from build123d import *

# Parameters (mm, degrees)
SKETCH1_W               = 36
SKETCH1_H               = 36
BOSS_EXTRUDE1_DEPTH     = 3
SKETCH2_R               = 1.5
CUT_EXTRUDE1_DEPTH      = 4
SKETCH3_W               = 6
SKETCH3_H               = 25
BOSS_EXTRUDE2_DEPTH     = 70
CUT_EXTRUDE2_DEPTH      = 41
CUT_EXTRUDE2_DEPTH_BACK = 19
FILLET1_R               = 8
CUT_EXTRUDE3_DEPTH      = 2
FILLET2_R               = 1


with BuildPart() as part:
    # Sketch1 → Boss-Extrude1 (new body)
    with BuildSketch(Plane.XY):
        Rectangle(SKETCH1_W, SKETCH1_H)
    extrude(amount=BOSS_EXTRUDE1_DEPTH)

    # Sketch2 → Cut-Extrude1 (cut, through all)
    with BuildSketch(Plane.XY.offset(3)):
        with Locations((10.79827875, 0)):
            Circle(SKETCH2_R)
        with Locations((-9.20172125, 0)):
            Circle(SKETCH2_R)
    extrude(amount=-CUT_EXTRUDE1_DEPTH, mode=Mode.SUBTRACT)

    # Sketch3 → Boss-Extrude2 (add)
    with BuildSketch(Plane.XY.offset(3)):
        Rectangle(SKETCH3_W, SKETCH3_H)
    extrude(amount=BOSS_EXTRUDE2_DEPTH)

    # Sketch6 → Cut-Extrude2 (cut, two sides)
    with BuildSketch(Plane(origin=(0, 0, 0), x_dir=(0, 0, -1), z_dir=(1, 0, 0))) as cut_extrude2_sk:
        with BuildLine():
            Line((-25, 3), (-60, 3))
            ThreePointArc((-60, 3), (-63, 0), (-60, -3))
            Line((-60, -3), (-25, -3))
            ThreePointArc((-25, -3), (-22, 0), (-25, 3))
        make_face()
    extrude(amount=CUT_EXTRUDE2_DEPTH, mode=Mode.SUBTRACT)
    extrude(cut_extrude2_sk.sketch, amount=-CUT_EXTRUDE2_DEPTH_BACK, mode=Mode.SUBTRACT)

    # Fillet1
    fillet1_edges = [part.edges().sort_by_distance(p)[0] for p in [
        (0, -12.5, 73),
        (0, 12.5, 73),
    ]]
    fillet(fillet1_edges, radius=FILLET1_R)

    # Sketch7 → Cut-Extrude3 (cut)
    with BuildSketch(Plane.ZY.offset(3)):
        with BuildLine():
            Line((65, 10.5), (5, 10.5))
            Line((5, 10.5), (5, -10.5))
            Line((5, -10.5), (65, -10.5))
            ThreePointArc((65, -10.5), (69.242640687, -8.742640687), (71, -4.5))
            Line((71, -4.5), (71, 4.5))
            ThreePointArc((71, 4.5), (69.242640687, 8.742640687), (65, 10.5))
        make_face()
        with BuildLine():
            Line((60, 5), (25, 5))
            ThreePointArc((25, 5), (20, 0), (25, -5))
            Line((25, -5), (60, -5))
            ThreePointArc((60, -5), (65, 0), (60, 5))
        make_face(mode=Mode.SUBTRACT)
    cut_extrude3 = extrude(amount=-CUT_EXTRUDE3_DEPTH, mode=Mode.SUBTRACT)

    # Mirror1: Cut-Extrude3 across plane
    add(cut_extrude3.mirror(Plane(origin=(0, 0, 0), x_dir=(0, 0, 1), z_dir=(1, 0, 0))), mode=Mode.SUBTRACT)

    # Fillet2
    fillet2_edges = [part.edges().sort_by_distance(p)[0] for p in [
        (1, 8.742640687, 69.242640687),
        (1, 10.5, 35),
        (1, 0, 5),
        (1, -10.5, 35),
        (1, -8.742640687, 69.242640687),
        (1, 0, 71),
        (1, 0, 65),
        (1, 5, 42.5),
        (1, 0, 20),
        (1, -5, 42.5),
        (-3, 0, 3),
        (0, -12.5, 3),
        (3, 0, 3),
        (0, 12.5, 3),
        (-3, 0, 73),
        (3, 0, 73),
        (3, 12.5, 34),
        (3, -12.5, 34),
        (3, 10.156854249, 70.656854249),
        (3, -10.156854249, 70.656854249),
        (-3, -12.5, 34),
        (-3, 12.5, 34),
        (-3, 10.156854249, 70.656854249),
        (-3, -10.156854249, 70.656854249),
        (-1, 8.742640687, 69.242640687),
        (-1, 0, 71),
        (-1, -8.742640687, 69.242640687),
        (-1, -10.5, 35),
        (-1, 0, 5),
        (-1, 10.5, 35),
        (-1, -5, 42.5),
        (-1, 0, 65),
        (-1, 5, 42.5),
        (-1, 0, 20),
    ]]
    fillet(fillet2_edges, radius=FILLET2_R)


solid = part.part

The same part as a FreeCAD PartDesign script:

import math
import FreeCAD as App
import Part
import Sketcher
Q = App.Units.Quantity


def edges_at(feature, points):
    """Names of the edges that pass closest to the given points."""
    edges = feature.Shape.Edges
    near = lambda p: min(range(len(edges)), key=lambda i: edges[i].distToShape(Part.Vertex(*p))[0])
    return sorted({f"Edge{near(p) + 1}" for p in points})


def add_polygon(sketch, points):
    """Adds a closed chain of lines whose ends are joined by coincident constraints."""
    first, n = sketch.GeometryCount, len(points)
    for a, b in zip(points, points[1:] + points[:1]):
        sketch.addGeometry(Part.LineSegment(App.Vector(*a, 0), App.Vector(*b, 0)), False)
    for i in range(n):
        sketch.addConstraint(Sketcher.Constraint("Coincident", first + i, 2, first + (i + 1) % n, 1))

doc = App.newDocument("Part")
body = doc.addObject("PartDesign::Body", "Body")

# Sketch on XY plane
sketch1 = doc.addObject("Sketcher::SketchObject", "Sketch")
body.addObject(sketch1)
sketch1.AttachmentSupport = (doc.XY_Plane, [""])
sketch1.MapMode = "FlatFace"
add_polygon(sketch1, [(-18, 18), (-18, -18), (18, -18), (18, 18)])  # lines 0-3
sketch1.addConstraint(Sketcher.Constraint("Vertical", 0))
sketch1.addConstraint(Sketcher.Constraint("Horizontal", 1))
sketch1.addConstraint(Sketcher.Constraint("Vertical", 2))
sketch1.addConstraint(Sketcher.Constraint("Horizontal", 3))
sketch1.addConstraint(Sketcher.Constraint("Symmetric", 0, 2, 2, 2, -1, 1))
sketch1.addConstraint(Sketcher.Constraint("Equal", 3, 0))
sketch1.addConstraint(Sketcher.Constraint("DistanceX", 1, 1, 1, 2, Q("36 mm")))
pad1 = doc.addObject("PartDesign::Pad", "Pad")
body.addObject(pad1)
pad1.Profile = sketch1
pad1.Length = 3

# Sketch on XY plane
sketch2 = doc.addObject("Sketcher::SketchObject", "Sketch001")
body.addObject(sketch2)
sketch2.AttachmentSupport = (doc.XY_Plane, [""])
sketch2.MapMode = "FlatFace"
sketch2.AttachmentOffset = App.Placement(App.Vector(0, 0, 3), App.Rotation())
sketch2.addGeometry(Part.Circle(App.Vector(10.798279, 0, 0), App.Vector(0, 0, 1), 1.5), False)
sketch2.addGeometry(Part.Circle(App.Vector(-9.201721, 0, 0), App.Vector(0, 0, 1), 1.5), False)
sketch2.addConstraint(Sketcher.Constraint("Equal", 0, 1))
sketch2.addConstraint(Sketcher.Constraint("PointOnObject", 0, 3, -1))
sketch2.addConstraint(Sketcher.Constraint("PointOnObject", 1, 3, -1))
sketch2.addConstraint(Sketcher.Constraint("Diameter", 0, Q("3 mm")))
sketch2.addConstraint(Sketcher.Constraint("DistanceX", 1, 3, 0, 3, Q("20 mm")))
sketch2.addConstraint(Sketcher.Constraint("DistanceX", -1, 1, 0, 3, Q("10.798279 mm")))
pocket1 = doc.addObject("PartDesign::Pocket", "Pocket")
body.addObject(pocket1)
pocket1.Profile = sketch2
pocket1.Type = "ThroughAll"

# Sketch on XY plane
sketch3 = doc.addObject("Sketcher::SketchObject", "Sketch002")
body.addObject(sketch3)
sketch3.AttachmentSupport = (doc.XY_Plane, [""])
sketch3.MapMode = "FlatFace"
sketch3.AttachmentOffset = App.Placement(App.Vector(0, 0, 3), App.Rotation())
add_polygon(sketch3, [(-3, 12.5), (-3, -12.5), (3, -12.5), (3, 12.5)])  # lines 0-3
sketch3.addConstraint(Sketcher.Constraint("Vertical", 0))
sketch3.addConstraint(Sketcher.Constraint("Horizontal", 1))
sketch3.addConstraint(Sketcher.Constraint("Vertical", 2))
sketch3.addConstraint(Sketcher.Constraint("Horizontal", 3))
sketch3.addConstraint(Sketcher.Constraint("Symmetric", 0, 2, 2, 2, -1, 1))
sketch3.addConstraint(Sketcher.Constraint("DistanceX", 1, 1, 1, 2, Q("6 mm")))
sketch3.addConstraint(Sketcher.Constraint("DistanceY", 0, 2, 0, 1, Q("25 mm")))
pad2 = doc.addObject("PartDesign::Pad", "Pad001")
body.addObject(pad2)
pad2.Profile = sketch3
pad2.Length = 70

# Sketch on YZ plane
sketch4 = doc.addObject("Sketcher::SketchObject", "Sketch003")
body.addObject(sketch4)
sketch4.AttachmentSupport = (doc.YZ_Plane, [""])
sketch4.MapMode = "FlatFace"
sketch4.addGeometry(Part.LineSegment(App.Vector(3, 25, 0), App.Vector(3, 60, 0)), False)
sketch4.addGeometry(Part.ArcOfCircle(Part.Circle(App.Vector(0, 60, 0), App.Vector(0, 0, 1), 3), math.radians(0), math.radians(180)), False)
sketch4.addGeometry(Part.LineSegment(App.Vector(-3, 60, 0), App.Vector(-3, 25, 0)), False)
sketch4.addGeometry(Part.ArcOfCircle(Part.Circle(App.Vector(0, 25, 0), App.Vector(0, 0, 1), 3), math.radians(180), math.radians(360)), False)
sketch4.addConstraint(Sketcher.Constraint("Tangent", 0, 2, 1, 1))
sketch4.addConstraint(Sketcher.Constraint("Tangent", 1, 2, 2, 1))
sketch4.addConstraint(Sketcher.Constraint("Tangent", 2, 2, 3, 1))
sketch4.addConstraint(Sketcher.Constraint("Tangent", 3, 2, 0, 1))
sketch4.addConstraint(Sketcher.Constraint("Vertical", 0))
sketch4.addConstraint(Sketcher.Constraint("Vertical", 2))
sketch4.addConstraint(Sketcher.Constraint("PointOnObject", 1, 3, -2))
sketch4.addConstraint(Sketcher.Constraint("Radius", 1, Q("3 mm")))
sketch4.addConstraint(Sketcher.Constraint("DistanceY", 0, 1, 0, 2, Q("35 mm")))
sketch4.addConstraint(Sketcher.Constraint("DistanceY", -1, 1, 1, 3, Q("60 mm")))
pocket2 = doc.addObject("PartDesign::Pocket", "Pocket001")
body.addObject(pocket2)
pocket2.Profile = sketch4
pocket2.Type = "ThroughAll"
pocket2.Midplane = True
doc.recompute()

fillet = doc.addObject("PartDesign::Fillet", "Fillet")
body.addObject(fillet)
fillet.Base = (pocket2, edges_at(pocket2, [(0, -12.5, 73), (0, 12.5, 73)]))
fillet.Radius = 8

# Sketch on YZ plane
sketch5 = doc.addObject("Sketcher::SketchObject", "Sketch004")
body.addObject(sketch5)
sketch5.AttachmentSupport = (doc.YZ_Plane, [""])
sketch5.MapMode = "FlatFace"
sketch5.AttachmentOffset = App.Placement(App.Vector(0, 0, -3), App.Rotation())
sketch5.addGeometry(Part.LineSegment(App.Vector(10.5, 65, 0), App.Vector(10.5, 5, 0)), False)
sketch5.addGeometry(Part.LineSegment(App.Vector(10.5, 5, 0), App.Vector(-10.5, 5, 0)), False)
sketch5.addGeometry(Part.LineSegment(App.Vector(-10.5, 5, 0), App.Vector(-10.5, 65, 0)), False)
sketch5.addGeometry(Part.ArcOfCircle(Part.Circle(App.Vector(-4.5, 65, 0), App.Vector(0, 0, 1), 6), math.radians(90), math.radians(180)), False)
sketch5.addGeometry(Part.LineSegment(App.Vector(-4.5, 71, 0), App.Vector(4.5, 71, 0)), False)
sketch5.addGeometry(Part.ArcOfCircle(Part.Circle(App.Vector(4.5, 65, 0), App.Vector(0, 0, 1), 6), math.radians(0), math.radians(90)), False)
sketch5.addGeometry(Part.LineSegment(App.Vector(5, 25, 0), App.Vector(5, 60, 0)), False)
sketch5.addGeometry(Part.ArcOfCircle(Part.Circle(App.Vector(0, 60, 0), App.Vector(0, 0, 1), 5), math.radians(0), math.radians(180)), False)
sketch5.addGeometry(Part.LineSegment(App.Vector(-5, 60, 0), App.Vector(-5, 25, 0)), False)
sketch5.addGeometry(Part.ArcOfCircle(Part.Circle(App.Vector(0, 25, 0), App.Vector(0, 0, 1), 5), math.radians(180), math.radians(360)), False)
sketch5.addConstraint(Sketcher.Constraint("Coincident", 0, 2, 1, 1))
sketch5.addConstraint(Sketcher.Constraint("Coincident", 1, 2, 2, 1))
sketch5.addConstraint(Sketcher.Constraint("Tangent", 2, 2, 3, 2))
sketch5.addConstraint(Sketcher.Constraint("Tangent", 3, 1, 4, 1))
sketch5.addConstraint(Sketcher.Constraint("Tangent", 4, 2, 5, 2))
sketch5.addConstraint(Sketcher.Constraint("Tangent", 5, 1, 0, 1))
sketch5.addConstraint(Sketcher.Constraint("Tangent", 6, 2, 7, 1))
sketch5.addConstraint(Sketcher.Constraint("Tangent", 7, 2, 8, 1))
sketch5.addConstraint(Sketcher.Constraint("Tangent", 8, 2, 9, 1))
sketch5.addConstraint(Sketcher.Constraint("Tangent", 9, 2, 6, 1))
sketch5.addConstraint(Sketcher.Constraint("Vertical", 0))
sketch5.addConstraint(Sketcher.Constraint("Horizontal", 1))
sketch5.addConstraint(Sketcher.Constraint("Vertical", 2))
sketch5.addConstraint(Sketcher.Constraint("Horizontal", 4))
sketch5.addConstraint(Sketcher.Constraint("Vertical", 6))
sketch5.addConstraint(Sketcher.Constraint("Vertical", 8))
sketch5.addConstraint(Sketcher.Constraint("Equal", 3, 5))
sketch5.addConstraint(Sketcher.Constraint("PointOnObject", 7, 3, -2))
sketch5.addConstraint(Sketcher.Constraint("Radius", 3, Q("6 mm")))
sketch5.addConstraint(Sketcher.Constraint("Radius", 7, Q("5 mm")))
sketch5.addConstraint(Sketcher.Constraint("DistanceX", 1, 2, 1, 1, Q("21 mm")))
sketch5.addConstraint(Sketcher.Constraint("DistanceY", 0, 2, 0, 1, Q("60 mm")))
sketch5.addConstraint(Sketcher.Constraint("DistanceY", 6, 1, 6, 2, Q("35 mm")))
sketch5.addConstraint(Sketcher.Constraint("DistanceY", -1, 1, 3, 3, Q("65 mm")))
sketch5.addConstraint(Sketcher.Constraint("DistanceY", -1, 1, 7, 3, Q("60 mm")))
sketch5.addConstraint(Sketcher.Constraint("DistanceX", 3, 3, -1, 1, Q("4.5 mm")))
pocket3 = doc.addObject("PartDesign::Pocket", "Pocket002")
body.addObject(pocket3)
pocket3.Profile = sketch5
pocket3.Length = 2
pocket3.Reversed = True
doc.recompute()

mirrored = doc.addObject("PartDesign::Mirrored", "Mirrored")
body.addObject(mirrored)
mirrored.Originals = [pocket3]
mirrored.MirrorPlane = (doc.YZ_Plane, [""])
body.Tip = mirrored
doc.recompute()

fillet2 = doc.addObject("PartDesign::Fillet", "Fillet001")
body.addObject(fillet2)
fillet2.Base = (mirrored, edges_at(mirrored, [
    (1, 8.743, 69.243),
    (1, 10.5, 35),
    (1, 0, 5),
    (1, -10.5, 35),
    (1, -8.743, 69.243),
    (1, 0, 71),
    (1, 0, 65),
    (1, 5, 42.5),
    (1, 0, 20),
    (1, -5, 42.5),
    (-3, 0, 3),
    (0, -12.5, 3),
    (3, 0, 3),
    (0, 12.5, 3),
    (-3, 0, 73),
    (3, 0, 73),
    (3, 12.5, 34),
    (3, -12.5, 34),
    (3, 10.157, 70.657),
    (3, -10.157, 70.657),
    (-3, -12.5, 34),
    (-3, 12.5, 34),
    (-3, 10.157, 70.657),
    (-3, -10.157, 70.657),
    (-1, 8.743, 69.243),
    (-1, 0, 71),
    (-1, -8.743, 69.243),
    (-1, -10.5, 35),
    (-1, 0, 5),
    (-1, 10.5, 35),
    (-1, -5, 42.5),
    (-1, 0, 65),
    (-1, 5, 42.5),
    (-1, 0, 20),
]))
fillet2.Radius = 1

doc.recompute()
